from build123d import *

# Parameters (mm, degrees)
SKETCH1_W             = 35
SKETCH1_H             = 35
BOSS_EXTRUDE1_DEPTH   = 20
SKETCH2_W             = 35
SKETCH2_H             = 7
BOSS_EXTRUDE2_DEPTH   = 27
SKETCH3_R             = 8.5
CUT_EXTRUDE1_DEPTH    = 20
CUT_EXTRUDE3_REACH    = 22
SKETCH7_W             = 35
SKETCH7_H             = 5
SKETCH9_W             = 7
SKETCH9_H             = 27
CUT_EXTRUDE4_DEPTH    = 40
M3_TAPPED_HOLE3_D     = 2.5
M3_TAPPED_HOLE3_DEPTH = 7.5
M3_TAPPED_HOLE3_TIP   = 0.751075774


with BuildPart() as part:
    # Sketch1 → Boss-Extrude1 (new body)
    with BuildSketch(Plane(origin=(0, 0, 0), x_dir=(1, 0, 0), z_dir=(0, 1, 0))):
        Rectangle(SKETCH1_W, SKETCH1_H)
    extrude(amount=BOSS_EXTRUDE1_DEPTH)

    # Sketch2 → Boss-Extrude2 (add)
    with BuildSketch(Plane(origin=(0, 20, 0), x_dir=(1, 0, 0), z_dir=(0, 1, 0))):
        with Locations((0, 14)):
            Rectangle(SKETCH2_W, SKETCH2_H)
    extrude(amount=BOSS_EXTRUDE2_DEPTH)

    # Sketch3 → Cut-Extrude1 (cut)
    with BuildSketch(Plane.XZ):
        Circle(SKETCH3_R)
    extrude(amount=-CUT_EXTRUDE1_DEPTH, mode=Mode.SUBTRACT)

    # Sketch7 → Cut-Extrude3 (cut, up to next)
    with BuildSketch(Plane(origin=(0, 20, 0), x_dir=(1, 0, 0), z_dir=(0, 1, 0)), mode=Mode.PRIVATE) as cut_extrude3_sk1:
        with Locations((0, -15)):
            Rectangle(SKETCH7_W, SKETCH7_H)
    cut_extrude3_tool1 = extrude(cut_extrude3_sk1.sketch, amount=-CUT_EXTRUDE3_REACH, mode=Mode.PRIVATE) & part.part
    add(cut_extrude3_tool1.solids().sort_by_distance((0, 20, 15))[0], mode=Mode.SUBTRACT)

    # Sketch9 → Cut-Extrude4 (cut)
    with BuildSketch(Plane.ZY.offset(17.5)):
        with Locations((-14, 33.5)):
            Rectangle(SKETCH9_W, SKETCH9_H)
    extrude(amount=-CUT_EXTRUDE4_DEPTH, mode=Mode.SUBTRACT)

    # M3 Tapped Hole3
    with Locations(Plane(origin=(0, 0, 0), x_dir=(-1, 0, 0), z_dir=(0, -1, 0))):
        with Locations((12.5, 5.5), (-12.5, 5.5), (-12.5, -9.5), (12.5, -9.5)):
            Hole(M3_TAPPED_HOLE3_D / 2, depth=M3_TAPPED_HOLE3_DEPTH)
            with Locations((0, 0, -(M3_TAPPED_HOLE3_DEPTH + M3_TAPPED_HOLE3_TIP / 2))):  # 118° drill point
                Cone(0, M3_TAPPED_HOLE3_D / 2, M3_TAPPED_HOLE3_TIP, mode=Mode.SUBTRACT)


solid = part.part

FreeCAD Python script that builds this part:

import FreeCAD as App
import Part
import Sketcher
from FreeCAD import Vector
Q = App.Units.Quantity

doc = App.newDocument("Part")
params = doc.addObject("Spreadsheet::Sheet", "Params")
for row, (alias, value) in enumerate([
    ("sketch1_width", "35 mm"),
    ("pad1_length", "20 mm"),
    ("sketch2_width", "35 mm"),
    ("sketch2_height", "7 mm"),
    ("pad2_length", "27 mm"),
    ("sketch3_diameter", "17 mm"),
    ("pocket1_length", "20 mm"),
    ("sketch4_width", "35 mm"),
    ("sketch4_height", "5 mm"),
    ("sketch5_width", "27 mm"),
    ("sketch5_height", "7 mm"),
    ("pocket3_length", "40 mm"),
    ("sketch6_diameter", "2.5 mm"),
    ("hole_diameter", "2.5 mm"),
    ("hole_depth", "7.5 mm"),
], start=1):
    params.set(f"A{row}", alias)
    params.set(f"B{row}", "=" + value)
    params.setAlias(f"B{row}", alias)

body = doc.addObject("PartDesign::Body", "Body")

# Sketch on XZ plane
sketch1 = body.newObject("Sketcher::SketchObject", "Sketch")
sketch1.AttachmentSupport = (doc.getObject("XZ_Plane"), [""])
sketch1.MapMode = "FlatFace"
sketch1.addGeometry(Part.LineSegment(Vector(-17.5, -17.5, 0), Vector(-17.5, 17.5, 0)), False)
sketch1.addGeometry(Part.LineSegment(Vector(-17.5, 17.5, 0), Vector(17.5, 17.5, 0)), False)
sketch1.addGeometry(Part.LineSegment(Vector(17.5, 17.5, 0), Vector(17.5, -17.5, 0)), False)
sketch1.addGeometry(Part.LineSegment(Vector(17.5, -17.5, 0), Vector(-17.5, -17.5, 0)), False)
sketch1.addConstraint(Sketcher.Constraint("Coincident", 0, 2, 1, 1))
sketch1.addConstraint(Sketcher.Constraint("Coincident", 1, 2, 2, 1))
sketch1.addConstraint(Sketcher.Constraint("Coincident", 2, 2, 3, 1))
sketch1.addConstraint(Sketcher.Constraint("Coincident", 3, 2, 0, 1))
sketch1.addConstraint(Sketcher.Constraint("Vertical", 0))
sketch1.addConstraint(Sketcher.Constraint("Horizontal", 1))
sketch1.addConstraint(Sketcher.Constraint("Vertical", 2))
sketch1.addConstraint(Sketcher.Constraint("Horizontal", 3))
sketch1.addConstraint(Sketcher.Constraint("Symmetric", 0, 2, 2, 2, -1, 1))
sketch1.addConstraint(Sketcher.Constraint("Equal", 3, 0))
sketch1.addConstraint(Sketcher.Constraint("DistanceX", 1, 1, 1, 2, Q("35 mm")))
sketch1.setExpression("Constraints[10]", "Params.sketch1_width")
pad1 = body.newObject("PartDesign::Pad", "Pad")
pad1.Profile = sketch1
pad1.setExpression("Length", "Params.pad1_length")
pad1.Reversed = True

# Sketch on XZ plane
sketch2 = body.newObject("Sketcher::SketchObject", "Sketch001")
sketch2.AttachmentSupport = (doc.getObject("XZ_Plane"), [""])
sketch2.MapMode = "FlatFace"
sketch2.AttachmentOffset = App.Placement(Vector(0, 0, -20), App.Rotation())
sketch2.addGeometry(Part.LineSegment(Vector(-17.5, -17.5, 0), Vector(-17.5, -10.5, 0)), False)
sketch2.addGeometry(Part.LineSegment(Vector(-17.5, -10.5, 0), Vector(17.5, -10.5, 0)), False)
sketch2.addGeometry(Part.LineSegment(Vector(17.5, -10.5, 0), Vector(17.5, -17.5, 0)), False)
sketch2.addGeometry(Part.LineSegment(Vector(17.5, -17.5, 0), Vector(-17.5, -17.5, 0)), False)
sketch2.addConstraint(Sketcher.Constraint("Coincident", 0, 2, 1, 1))
sketch2.addConstraint(Sketcher.Constraint("Coincident", 1, 2, 2, 1))
sketch2.addConstraint(Sketcher.Constraint("Coincident", 2, 2, 3, 1))
sketch2.addConstraint(Sketcher.Constraint("Coincident", 3, 2, 0, 1))
sketch2.addConstraint(Sketcher.Constraint("Vertical", 0))
sketch2.addConstraint(Sketcher.Constraint("Horizontal", 1))
sketch2.addConstraint(Sketcher.Constraint("Vertical", 2))
sketch2.addConstraint(Sketcher.Constraint("Horizontal", 3))
sketch2.addConstraint(Sketcher.Constraint("DistanceX", 1, 1, 1, 2, Q("35 mm")))
sketch2.addConstraint(Sketcher.Constraint("DistanceY", 0, 1, 0, 2, Q("7 mm")))
sketch2.addConstraint(Sketcher.Constraint("DistanceX", 0, 2, -1, 1, Q("17.5 mm")))
sketch2.addConstraint(Sketcher.Constraint("DistanceY", 0, 2, -1, 1, Q("10.5 mm")))
sketch2.setExpression("Constraints[8]", "Params.sketch2_width")
sketch2.setExpression("Constraints[9]", "Params.sketch2_height")
pad2 = body.newObject("PartDesign::Pad", "Pad001")
pad2.Profile = sketch2
pad2.setExpression("Length", "Params.pad2_length")
pad2.Reversed = True

# Sketch on XZ plane
sketch3 = body.newObject("Sketcher::SketchObject", "Sketch002")
sketch3.AttachmentSupport = (doc.getObject("XZ_Plane"), [""])
sketch3.MapMode = "FlatFace"
sketch3.addGeometry(Part.Circle(Vector(0, 0, 0), Vector(0, 0, 1), 8.5), False)
sketch3.addConstraint(Sketcher.Constraint("Coincident", 0, 3, -1, 1))
sketch3.addConstraint(Sketcher.Constraint("Diameter", 0, Q("17 mm")))
sketch3.setExpression("Constraints[1]", "Params.sketch3_diameter")
pocket1 = body.newObject("PartDesign::Pocket", "Pocket")
pocket1.Profile = sketch3
pocket1.setExpression("Length", "Params.pocket1_length")

# Sketch on XZ plane
sketch4 = body.newObject("Sketcher::SketchObject", "Sketch003")
sketch4.AttachmentSupport = (doc.getObject("XZ_Plane"), [""])
sketch4.MapMode = "FlatFace"
sketch4.AttachmentOffset = App.Placement(Vector(0, 0, -20), App.Rotation())
sketch4.addGeometry(Part.LineSegment(Vector(-17.5, 12.5, 0), Vector(-17.5, 17.5, 0)), False)
sketch4.addGeometry(Part.LineSegment(Vector(-17.5, 17.5, 0), Vector(17.5, 17.5, 0)), False)
sketch4.addGeometry(Part.LineSegment(Vector(17.5, 17.5, 0), Vector(17.5, 12.5, 0)), False)
sketch4.addGeometry(Part.LineSegment(Vector(17.5, 12.5, 0), Vector(-17.5, 12.5, 0)), False)
sketch4.addConstraint(Sketcher.Constraint("Coincident", 0, 2, 1, 1))
sketch4.addConstraint(Sketcher.Constraint("Coincident", 1, 2, 2, 1))
sketch4.addConstraint(Sketcher.Constraint("Coincident", 2, 2, 3, 1))
sketch4.addConstraint(Sketcher.Constraint("Coincident", 3, 2, 0, 1))
sketch4.addConstraint(Sketcher.Constraint("Vertical", 0))
sketch4.addConstraint(Sketcher.Constraint("Horizontal", 1))
sketch4.addConstraint(Sketcher.Constraint("Vertical", 2))
sketch4.addConstraint(Sketcher.Constraint("Horizontal", 3))
sketch4.addConstraint(Sketcher.Constraint("DistanceX", 1, 1, 1, 2, Q("35 mm")))
sketch4.addConstraint(Sketcher.Constraint("DistanceY", 0, 1, 0, 2, Q("5 mm")))
sketch4.addConstraint(Sketcher.Constraint("DistanceX", 0, 2, -1, 1, Q("17.5 mm")))
sketch4.addConstraint(Sketcher.Constraint("DistanceY", -1, 1, 0, 2, Q("17.5 mm")))
sketch4.setExpression("Constraints[8]", "Params.sketch4_width")
sketch4.setExpression("Constraints[9]", "Params.sketch4_height")
pocket2 = body.newObject("PartDesign::Pocket", "Pocket001")
pocket2.Profile = sketch4
pocket2.Type = "UpToFirst"
pocket2.Reversed = True

# Sketch on YZ plane
sketch5 = body.newObject("Sketcher::SketchObject", "Sketch004")
sketch5.AttachmentSupport = (doc.getObject("YZ_Plane"), [""])
sketch5.MapMode = "FlatFace"
sketch5.AttachmentOffset = App.Placement(Vector(0, 0, -17.5), App.Rotation())
sketch5.addGeometry(Part.LineSegment(Vector(47, -17.5, 0), Vector(20, -17.5, 0)), False)
sketch5.addGeometry(Part.LineSegment(Vector(20, -17.5, 0), Vector(20, -10.5, 0)), False)
sketch5.addGeometry(Part.LineSegment(Vector(20, -10.5, 0), Vector(47, -10.5, 0)), False)
sketch5.addGeometry(Part.LineSegment(Vector(47, -10.5, 0), Vector(47, -17.5, 0)), False)
sketch5.addConstraint(Sketcher.Constraint("Coincident", 0, 2, 1, 1))
sketch5.addConstraint(Sketcher.Constraint("Coincident", 1, 2, 2, 1))
sketch5.addConstraint(Sketcher.Constraint("Coincident", 2, 2, 3, 1))
sketch5.addConstraint(Sketcher.Constraint("Coincident", 3, 2, 0, 1))
sketch5.addConstraint(Sketcher.Constraint("Horizontal", 0))
sketch5.addConstraint(Sketcher.Constraint("Vertical", 1))
sketch5.addConstraint(Sketcher.Constraint("Horizontal", 2))
sketch5.addConstraint(Sketcher.Constraint("Vertical", 3))
sketch5.addConstraint(Sketcher.Constraint("DistanceX", 0, 2, 0, 1, Q("27 mm")))
sketch5.addConstraint(Sketcher.Constraint("DistanceY", 1, 1, 1, 2, Q("7 mm")))
sketch5.addConstraint(Sketcher.Constraint("DistanceX", -1, 1, 0, 2, Q("20 mm")))
sketch5.addConstraint(Sketcher.Constraint("DistanceY", 0, 2, -1, 1, Q("17.5 mm")))
sketch5.setExpression("Constraints[8]", "Params.sketch5_width")
sketch5.setExpression("Constraints[9]", "Params.sketch5_height")
pocket3 = body.newObject("PartDesign::Pocket", "Pocket002")
pocket3.Profile = sketch5
pocket3.setExpression("Length", "Params.pocket3_length")
pocket3.Reversed = True

# Sketch on XZ plane
sketch6 = body.newObject("Sketcher::SketchObject", "Sketch005")
sketch6.AttachmentSupport = (doc.getObject("XZ_Plane"), [""])
sketch6.MapMode = "FlatFace"
sketch6.addGeometry(Part.Circle(Vector(-12.5, -5.5, 0), Vector(0, 0, 1), 1.25), False)
sketch6.addGeometry(Part.Circle(Vector(12.5, -5.5, 0), Vector(0, 0, 1), 1.25), False)
sketch6.addGeometry(Part.Circle(Vector(12.5, 9.5, 0), Vector(0, 0, 1), 1.25), False)
sketch6.addGeometry(Part.Circle(Vector(-12.5, 9.5, 0), Vector(0, 0, 1), 1.25), False)
sketch6.addConstraint(Sketcher.Constraint("Equal", 0, 1))
sketch6.addConstraint(Sketcher.Constraint("Equal", 1, 2))
sketch6.addConstraint(Sketcher.Constraint("Equal", 2, 3))
sketch6.addConstraint(Sketcher.Constraint("Symmetric", 0, 3, 1, 3, -2))
sketch6.addConstraint(Sketcher.Constraint("Symmetric", 2, 3, 3, 3, -2))
sketch6.addConstraint(Sketcher.Constraint("Vertical", 1, 3, 2, 3))
sketch6.addConstraint(Sketcher.Constraint("Diameter", 0, Q("2.5 mm")))
sketch6.addConstraint(Sketcher.Constraint("DistanceX", 0, 3, 1, 3, Q("25 mm")))
sketch6.addConstraint(Sketcher.Constraint("DistanceY", 1, 3, 2, 3, Q("15 mm")))
sketch6.addConstraint(Sketcher.Constraint("DistanceY", 0, 3, -1, 1, Q("5.5 mm")))
sketch6.setExpression("Constraints[6]", "Params.sketch6_diameter")
doc.recompute()
hole = body.newObject("PartDesign::Hole", "Hole")
hole.Profile = sketch6
hole.ThreadType = "None"
hole.setExpression("Diameter", "Params.hole_diameter")
hole.DepthType = "Dimension"
hole.setExpression("Depth", "Params.hole_depth")
hole.DrillPoint = "Angled"
hole.DrillPointAngle = 118

doc.recompute()
